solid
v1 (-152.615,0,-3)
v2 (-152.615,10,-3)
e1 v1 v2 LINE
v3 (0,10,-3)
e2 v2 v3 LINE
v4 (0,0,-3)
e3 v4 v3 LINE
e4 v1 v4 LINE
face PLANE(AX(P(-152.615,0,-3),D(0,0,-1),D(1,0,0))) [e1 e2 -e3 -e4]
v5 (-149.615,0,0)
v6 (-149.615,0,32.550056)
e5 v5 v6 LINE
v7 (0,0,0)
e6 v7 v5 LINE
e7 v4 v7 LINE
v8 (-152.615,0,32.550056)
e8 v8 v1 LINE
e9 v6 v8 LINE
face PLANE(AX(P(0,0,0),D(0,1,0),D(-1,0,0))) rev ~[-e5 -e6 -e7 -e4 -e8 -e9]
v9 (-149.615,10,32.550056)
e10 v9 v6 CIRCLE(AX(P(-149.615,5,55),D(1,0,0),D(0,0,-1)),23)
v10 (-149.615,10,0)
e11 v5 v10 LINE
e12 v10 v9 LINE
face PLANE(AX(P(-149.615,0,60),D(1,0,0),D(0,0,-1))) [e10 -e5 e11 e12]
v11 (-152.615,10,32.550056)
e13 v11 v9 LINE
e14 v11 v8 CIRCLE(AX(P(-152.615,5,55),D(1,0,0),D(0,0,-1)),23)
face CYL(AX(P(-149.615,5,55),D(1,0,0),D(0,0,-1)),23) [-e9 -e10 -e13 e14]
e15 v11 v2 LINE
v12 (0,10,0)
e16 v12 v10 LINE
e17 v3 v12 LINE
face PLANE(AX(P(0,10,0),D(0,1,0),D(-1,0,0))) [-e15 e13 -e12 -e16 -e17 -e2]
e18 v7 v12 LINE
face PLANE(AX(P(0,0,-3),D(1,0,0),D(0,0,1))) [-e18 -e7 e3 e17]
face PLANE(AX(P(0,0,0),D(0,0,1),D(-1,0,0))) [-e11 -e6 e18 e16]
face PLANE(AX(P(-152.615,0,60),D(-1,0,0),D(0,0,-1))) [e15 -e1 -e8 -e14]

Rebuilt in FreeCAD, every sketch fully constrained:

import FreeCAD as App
import Part
import Sketcher

V = App.Vector
Q = App.Units.Quantity

doc = App.newDocument("Part")
body = doc.addObject("PartDesign::Body", "Body")

sketch1 = body.newObject("Sketcher::SketchObject", "Sketch")
sketch1.AttachmentSupport = (doc.getObject("XZ_Plane"), [""])
sketch1.MapMode = "FlatFace"
sketch1.addGeometry([
    Part.LineSegment(V(-152.6, -3, 0), V(-152.6, 60, 0)),
    Part.LineSegment(V(-152.6, 60, 0), V(-149.6, 60, 0)),
    Part.LineSegment(V(-149.6, 60, 0), V(-149.6, 0, 0)),
    Part.LineSegment(V(-149.6, 0, 0), V(0, 0, 0)),
    Part.LineSegment(V(0, 0, 0), V(0, -3, 0)),
    Part.LineSegment(V(0, -3, 0), V(-152.6, -3, 0)),
], False)
sketch1.addConstraint([
    Sketcher.Constraint("Coincident", 0, 2, 1, 1),
    Sketcher.Constraint("Coincident", 1, 2, 2, 1),
    Sketcher.Constraint("Coincident", 2, 2, 3, 1),
    Sketcher.Constraint("Coincident", 3, 2, 4, 1),
    Sketcher.Constraint("Coincident", 4, 2, 5, 1),
    Sketcher.Constraint("Coincident", 5, 2, 0, 1),
    Sketcher.Constraint("Vertical", 0),
    Sketcher.Constraint("Horizontal", 1),
    Sketcher.Constraint("Vertical", 2),
    Sketcher.Constraint("Horizontal", 3),
    Sketcher.Constraint("Vertical", 4),
    Sketcher.Constraint("Horizontal", 5),
    Sketcher.Constraint("Coincident", 3, 2, -1, 1),
    Sketcher.Constraint("Equal", 1, 4),
    Sketcher.Constraint("DistanceX", 1, 1, 1, 2, Q("3 mm")),
    Sketcher.Constraint("DistanceY", 2, 2, 2, 1, Q("60 mm")),
    Sketcher.Constraint("DistanceX", 3, 1, 3, 2, Q("149.615 mm")),
])
pad1 = body.newObject("PartDesign::Pad", "Pad")
pad1.Profile = sketch1
pad1.Length = 10
pad1.Reversed = True

sketch2 = body.newObject("Sketcher::SketchObject", "Sketch001")
sketch2.AttachmentSupport = (doc.getObject("YZ_Plane"), [""])
sketch2.MapMode = "FlatFace"
sketch2.AttachmentOffset = App.Placement(V(0, 0, -149.615), App.Rotation())
sketch2.addGeometry(Part.Circle(V(5, 55, 0), V(0, 0, 1), 23), False)
sketch2.addConstraint([
    Sketcher.Constraint("Diameter", 0, Q("46 mm")),
    Sketcher.Constraint("DistanceX", -1, 1, 0, 3, Q("5 mm")),
    Sketcher.Constraint("DistanceY", -1, 1, 0, 3, Q("55 mm")),
])
pad2 = body.newObject("PartDesign::Pad", "Pad001")
pad2.Profile = sketch2
pad2.Length = 3
pad2.Reversed = True

doc.recompute()
